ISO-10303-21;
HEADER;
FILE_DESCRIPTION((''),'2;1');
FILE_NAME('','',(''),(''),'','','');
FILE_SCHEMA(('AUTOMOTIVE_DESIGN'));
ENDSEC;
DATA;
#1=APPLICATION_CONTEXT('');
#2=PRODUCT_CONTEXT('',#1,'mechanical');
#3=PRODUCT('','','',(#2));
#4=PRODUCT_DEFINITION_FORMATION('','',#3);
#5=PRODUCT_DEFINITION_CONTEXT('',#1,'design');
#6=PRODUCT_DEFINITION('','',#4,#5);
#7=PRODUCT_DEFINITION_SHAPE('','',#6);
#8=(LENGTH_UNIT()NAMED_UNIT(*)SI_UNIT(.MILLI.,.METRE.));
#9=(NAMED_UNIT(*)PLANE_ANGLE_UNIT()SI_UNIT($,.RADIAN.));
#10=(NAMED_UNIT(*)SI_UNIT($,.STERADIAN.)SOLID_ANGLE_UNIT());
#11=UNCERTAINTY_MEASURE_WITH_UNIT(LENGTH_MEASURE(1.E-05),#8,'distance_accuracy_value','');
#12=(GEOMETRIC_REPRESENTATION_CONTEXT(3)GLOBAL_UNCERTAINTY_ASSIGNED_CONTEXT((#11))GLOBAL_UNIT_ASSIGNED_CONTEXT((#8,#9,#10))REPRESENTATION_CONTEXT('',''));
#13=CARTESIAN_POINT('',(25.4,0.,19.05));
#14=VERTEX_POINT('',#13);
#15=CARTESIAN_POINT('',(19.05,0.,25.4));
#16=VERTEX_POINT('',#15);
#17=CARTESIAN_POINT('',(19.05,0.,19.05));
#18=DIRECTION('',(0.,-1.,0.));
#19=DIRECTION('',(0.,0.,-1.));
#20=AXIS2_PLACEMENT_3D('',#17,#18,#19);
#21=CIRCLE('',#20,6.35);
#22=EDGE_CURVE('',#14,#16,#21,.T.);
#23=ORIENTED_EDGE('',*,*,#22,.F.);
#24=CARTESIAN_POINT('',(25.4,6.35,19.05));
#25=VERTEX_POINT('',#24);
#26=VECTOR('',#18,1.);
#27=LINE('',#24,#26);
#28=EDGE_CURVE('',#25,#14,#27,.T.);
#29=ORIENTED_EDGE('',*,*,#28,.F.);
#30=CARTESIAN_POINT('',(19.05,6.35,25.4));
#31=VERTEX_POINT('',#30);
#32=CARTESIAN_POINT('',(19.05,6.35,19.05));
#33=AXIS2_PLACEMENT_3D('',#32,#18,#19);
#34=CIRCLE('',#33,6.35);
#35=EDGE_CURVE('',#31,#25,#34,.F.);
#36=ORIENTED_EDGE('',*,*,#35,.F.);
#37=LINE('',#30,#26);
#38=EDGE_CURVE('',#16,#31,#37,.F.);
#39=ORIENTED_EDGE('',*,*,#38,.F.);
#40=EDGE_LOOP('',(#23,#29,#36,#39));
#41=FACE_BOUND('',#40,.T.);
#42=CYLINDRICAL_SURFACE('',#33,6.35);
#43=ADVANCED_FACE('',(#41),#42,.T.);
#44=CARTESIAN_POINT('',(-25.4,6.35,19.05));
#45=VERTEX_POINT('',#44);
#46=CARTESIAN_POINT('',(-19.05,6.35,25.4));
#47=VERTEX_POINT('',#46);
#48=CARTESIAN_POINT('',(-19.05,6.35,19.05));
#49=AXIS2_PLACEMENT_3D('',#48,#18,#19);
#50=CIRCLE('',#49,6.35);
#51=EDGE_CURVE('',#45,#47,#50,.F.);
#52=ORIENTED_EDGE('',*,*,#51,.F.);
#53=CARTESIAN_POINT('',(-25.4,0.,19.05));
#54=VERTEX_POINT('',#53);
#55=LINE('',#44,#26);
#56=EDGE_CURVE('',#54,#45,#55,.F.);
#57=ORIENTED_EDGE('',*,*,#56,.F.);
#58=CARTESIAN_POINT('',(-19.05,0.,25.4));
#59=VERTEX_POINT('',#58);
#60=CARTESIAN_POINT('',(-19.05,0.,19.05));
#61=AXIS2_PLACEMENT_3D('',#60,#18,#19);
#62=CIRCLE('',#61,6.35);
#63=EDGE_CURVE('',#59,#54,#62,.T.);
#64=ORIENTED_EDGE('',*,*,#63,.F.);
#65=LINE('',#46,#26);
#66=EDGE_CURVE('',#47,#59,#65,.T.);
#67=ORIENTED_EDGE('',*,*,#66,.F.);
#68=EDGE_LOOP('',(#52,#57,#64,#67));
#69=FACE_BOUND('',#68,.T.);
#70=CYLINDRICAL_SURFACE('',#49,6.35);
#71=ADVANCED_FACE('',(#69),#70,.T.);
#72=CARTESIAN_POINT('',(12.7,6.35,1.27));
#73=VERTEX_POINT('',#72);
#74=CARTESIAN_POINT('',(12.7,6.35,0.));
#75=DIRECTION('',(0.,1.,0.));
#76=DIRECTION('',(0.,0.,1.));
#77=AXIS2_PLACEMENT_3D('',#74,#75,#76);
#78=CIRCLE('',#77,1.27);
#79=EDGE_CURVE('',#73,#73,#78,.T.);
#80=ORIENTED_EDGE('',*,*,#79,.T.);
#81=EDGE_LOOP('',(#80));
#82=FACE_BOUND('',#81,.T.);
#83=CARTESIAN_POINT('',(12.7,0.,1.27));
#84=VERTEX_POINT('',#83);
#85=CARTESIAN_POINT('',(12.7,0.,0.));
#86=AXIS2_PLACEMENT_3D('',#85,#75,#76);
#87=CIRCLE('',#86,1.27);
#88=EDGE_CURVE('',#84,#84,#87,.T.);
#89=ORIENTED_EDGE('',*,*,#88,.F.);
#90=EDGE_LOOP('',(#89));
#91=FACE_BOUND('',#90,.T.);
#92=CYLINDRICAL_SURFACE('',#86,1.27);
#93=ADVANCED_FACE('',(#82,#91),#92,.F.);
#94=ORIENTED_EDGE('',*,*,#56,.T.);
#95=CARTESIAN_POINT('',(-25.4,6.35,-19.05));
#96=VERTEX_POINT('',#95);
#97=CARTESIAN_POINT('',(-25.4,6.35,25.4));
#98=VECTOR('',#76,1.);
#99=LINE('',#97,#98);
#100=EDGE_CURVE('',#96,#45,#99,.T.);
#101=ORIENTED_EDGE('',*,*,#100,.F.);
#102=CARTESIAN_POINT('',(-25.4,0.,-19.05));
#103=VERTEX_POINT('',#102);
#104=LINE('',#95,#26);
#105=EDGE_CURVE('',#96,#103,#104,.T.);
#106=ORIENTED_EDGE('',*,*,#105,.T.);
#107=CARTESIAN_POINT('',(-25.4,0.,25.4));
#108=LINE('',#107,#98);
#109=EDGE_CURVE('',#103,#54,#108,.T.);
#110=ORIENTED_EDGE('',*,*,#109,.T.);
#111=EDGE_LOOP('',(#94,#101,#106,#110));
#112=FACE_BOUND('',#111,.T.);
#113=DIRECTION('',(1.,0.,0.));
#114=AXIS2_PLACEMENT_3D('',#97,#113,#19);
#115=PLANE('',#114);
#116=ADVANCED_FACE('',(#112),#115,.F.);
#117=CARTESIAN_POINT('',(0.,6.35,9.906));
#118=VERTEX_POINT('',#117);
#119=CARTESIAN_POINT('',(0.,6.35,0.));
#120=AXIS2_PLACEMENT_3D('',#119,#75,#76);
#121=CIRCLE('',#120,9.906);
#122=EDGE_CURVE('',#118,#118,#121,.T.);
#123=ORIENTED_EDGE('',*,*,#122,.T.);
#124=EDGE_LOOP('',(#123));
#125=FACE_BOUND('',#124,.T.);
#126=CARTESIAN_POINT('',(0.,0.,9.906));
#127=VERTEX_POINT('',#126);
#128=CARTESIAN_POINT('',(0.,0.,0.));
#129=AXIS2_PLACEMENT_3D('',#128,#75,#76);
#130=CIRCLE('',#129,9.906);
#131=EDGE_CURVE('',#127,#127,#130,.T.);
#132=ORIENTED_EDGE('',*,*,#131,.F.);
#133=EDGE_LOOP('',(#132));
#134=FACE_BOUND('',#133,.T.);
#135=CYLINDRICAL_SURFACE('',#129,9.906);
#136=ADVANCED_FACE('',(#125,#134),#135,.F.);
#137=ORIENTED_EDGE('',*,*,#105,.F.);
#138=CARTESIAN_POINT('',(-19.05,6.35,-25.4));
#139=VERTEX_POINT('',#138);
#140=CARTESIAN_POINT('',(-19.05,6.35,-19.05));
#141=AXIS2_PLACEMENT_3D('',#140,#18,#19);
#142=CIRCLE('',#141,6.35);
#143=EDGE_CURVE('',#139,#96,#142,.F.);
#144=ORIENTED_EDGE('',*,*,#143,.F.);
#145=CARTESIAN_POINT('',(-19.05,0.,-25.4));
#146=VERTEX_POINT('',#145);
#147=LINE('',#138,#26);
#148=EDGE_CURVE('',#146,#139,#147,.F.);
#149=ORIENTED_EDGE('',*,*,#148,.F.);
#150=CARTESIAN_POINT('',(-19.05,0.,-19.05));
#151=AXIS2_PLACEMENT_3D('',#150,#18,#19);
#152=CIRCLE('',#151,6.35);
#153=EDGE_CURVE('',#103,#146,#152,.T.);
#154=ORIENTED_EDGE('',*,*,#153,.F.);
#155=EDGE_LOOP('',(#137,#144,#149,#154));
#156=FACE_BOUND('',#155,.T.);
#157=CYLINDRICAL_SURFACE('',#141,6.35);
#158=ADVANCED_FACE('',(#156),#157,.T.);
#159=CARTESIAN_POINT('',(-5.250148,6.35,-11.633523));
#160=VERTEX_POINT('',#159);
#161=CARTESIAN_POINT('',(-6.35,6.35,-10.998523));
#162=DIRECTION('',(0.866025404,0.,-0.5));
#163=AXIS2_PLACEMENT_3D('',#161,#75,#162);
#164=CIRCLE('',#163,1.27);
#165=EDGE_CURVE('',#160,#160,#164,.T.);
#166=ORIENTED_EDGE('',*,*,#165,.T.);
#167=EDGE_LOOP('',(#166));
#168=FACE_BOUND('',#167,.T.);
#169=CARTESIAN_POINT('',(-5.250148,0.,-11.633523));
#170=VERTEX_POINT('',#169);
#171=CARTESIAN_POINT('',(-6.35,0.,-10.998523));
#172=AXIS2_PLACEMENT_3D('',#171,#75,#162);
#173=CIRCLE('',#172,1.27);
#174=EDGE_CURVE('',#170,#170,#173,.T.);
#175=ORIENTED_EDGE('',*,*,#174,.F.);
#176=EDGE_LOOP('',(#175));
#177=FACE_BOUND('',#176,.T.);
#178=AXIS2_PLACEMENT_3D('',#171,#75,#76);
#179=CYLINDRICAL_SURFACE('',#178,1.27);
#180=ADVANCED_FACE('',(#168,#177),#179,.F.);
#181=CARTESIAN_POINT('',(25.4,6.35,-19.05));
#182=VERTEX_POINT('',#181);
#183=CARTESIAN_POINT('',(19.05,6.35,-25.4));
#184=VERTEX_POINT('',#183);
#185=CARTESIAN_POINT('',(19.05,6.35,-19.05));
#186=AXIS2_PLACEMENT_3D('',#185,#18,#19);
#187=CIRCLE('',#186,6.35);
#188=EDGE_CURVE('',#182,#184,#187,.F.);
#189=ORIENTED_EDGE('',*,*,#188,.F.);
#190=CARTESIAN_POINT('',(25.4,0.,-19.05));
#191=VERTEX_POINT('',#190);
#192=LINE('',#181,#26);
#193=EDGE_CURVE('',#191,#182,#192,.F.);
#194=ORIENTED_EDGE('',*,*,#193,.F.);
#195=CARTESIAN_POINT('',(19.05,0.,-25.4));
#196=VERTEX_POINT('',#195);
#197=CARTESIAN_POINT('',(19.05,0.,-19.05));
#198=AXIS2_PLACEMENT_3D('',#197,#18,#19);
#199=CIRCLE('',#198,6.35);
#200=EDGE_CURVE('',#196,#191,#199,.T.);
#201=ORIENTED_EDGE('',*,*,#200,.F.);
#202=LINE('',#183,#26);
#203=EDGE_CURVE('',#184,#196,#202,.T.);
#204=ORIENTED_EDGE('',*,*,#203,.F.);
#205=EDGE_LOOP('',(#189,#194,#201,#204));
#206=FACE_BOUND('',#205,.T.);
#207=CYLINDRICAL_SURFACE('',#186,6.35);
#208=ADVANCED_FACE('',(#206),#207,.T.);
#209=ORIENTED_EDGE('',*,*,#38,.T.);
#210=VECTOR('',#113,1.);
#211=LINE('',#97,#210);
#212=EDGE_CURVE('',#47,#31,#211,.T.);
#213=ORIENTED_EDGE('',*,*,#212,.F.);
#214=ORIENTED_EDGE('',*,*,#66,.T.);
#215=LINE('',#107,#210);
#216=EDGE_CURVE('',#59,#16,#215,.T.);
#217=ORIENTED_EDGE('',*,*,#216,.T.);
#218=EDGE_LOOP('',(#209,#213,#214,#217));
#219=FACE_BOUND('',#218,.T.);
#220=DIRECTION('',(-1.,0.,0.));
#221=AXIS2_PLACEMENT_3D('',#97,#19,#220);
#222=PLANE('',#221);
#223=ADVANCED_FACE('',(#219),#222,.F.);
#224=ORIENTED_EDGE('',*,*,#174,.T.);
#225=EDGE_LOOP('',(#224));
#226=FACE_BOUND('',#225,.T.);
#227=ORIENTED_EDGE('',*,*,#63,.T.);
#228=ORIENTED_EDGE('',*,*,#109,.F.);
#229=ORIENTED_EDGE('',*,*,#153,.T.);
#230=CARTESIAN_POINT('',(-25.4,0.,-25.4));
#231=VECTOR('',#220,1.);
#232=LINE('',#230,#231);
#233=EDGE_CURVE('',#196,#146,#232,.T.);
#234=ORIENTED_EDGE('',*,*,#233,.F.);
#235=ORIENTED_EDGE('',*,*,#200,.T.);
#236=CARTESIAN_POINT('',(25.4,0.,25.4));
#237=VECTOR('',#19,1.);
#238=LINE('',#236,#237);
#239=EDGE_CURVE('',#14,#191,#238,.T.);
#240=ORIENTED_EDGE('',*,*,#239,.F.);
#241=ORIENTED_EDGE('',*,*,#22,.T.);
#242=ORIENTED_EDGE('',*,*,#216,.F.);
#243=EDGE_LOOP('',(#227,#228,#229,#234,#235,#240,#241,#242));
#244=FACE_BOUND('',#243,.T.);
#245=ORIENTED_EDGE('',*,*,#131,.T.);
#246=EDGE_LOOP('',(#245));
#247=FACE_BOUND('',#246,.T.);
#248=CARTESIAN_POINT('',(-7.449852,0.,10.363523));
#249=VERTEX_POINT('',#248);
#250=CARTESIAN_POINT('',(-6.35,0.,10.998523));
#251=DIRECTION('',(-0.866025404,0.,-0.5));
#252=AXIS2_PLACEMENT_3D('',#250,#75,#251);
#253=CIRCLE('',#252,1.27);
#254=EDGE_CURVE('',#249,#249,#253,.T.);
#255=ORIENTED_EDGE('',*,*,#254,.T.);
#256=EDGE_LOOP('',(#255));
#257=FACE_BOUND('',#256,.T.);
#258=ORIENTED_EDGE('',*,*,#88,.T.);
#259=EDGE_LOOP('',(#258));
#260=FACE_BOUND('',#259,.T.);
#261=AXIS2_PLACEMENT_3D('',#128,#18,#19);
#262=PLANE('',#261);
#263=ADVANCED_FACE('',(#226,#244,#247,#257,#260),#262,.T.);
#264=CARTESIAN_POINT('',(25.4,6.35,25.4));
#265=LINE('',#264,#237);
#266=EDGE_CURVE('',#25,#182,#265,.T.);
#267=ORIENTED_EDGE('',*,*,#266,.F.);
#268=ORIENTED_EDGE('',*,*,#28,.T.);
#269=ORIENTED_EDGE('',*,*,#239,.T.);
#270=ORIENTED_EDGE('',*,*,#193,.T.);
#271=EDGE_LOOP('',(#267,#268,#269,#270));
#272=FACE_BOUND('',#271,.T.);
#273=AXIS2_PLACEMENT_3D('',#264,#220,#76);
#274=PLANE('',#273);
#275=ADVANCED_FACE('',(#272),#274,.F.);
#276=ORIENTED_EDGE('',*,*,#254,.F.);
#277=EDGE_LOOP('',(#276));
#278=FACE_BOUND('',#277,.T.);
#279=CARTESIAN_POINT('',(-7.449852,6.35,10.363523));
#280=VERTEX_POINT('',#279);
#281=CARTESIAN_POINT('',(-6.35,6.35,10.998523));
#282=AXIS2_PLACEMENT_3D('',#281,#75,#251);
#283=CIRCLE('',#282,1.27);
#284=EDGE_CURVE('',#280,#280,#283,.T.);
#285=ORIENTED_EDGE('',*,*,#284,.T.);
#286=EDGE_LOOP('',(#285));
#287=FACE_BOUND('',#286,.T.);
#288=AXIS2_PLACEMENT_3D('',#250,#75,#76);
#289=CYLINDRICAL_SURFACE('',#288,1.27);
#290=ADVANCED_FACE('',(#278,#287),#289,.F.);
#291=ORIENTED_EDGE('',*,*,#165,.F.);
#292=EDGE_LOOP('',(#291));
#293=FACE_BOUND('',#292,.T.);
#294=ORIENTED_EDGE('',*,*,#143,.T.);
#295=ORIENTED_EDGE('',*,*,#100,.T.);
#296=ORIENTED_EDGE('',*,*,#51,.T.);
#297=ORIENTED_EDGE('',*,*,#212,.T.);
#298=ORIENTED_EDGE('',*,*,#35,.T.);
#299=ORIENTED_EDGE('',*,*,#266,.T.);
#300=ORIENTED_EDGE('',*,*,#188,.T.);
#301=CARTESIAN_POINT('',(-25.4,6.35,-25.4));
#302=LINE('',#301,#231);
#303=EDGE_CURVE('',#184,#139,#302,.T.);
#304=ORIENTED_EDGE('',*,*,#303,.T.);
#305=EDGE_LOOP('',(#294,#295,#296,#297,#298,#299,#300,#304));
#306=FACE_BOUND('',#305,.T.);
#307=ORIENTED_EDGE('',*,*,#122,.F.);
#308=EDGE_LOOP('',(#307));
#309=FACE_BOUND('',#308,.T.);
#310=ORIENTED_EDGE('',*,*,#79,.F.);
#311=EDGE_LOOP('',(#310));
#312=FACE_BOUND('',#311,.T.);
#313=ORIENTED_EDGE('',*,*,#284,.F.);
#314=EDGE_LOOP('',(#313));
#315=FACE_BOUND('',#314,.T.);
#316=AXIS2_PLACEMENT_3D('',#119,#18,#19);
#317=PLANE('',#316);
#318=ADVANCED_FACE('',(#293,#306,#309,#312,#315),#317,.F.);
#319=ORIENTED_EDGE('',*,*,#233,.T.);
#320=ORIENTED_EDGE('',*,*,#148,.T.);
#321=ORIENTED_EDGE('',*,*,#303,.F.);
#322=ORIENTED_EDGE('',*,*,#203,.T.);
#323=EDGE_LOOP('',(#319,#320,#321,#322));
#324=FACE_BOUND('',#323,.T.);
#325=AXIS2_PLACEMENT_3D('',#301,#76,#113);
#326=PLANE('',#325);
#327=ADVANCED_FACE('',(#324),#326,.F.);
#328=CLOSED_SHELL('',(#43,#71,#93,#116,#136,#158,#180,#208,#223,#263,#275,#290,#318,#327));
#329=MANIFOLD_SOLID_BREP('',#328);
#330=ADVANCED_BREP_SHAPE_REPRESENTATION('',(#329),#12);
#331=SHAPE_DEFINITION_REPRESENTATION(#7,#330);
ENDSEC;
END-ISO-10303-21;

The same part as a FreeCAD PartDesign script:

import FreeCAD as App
import Part
import Sketcher

V = App.Vector
Q = App.Units.Quantity


def edges_at(feature, points):
    """Names of the edges that pass closest to the given points."""
    edges = feature.Shape.Edges
    near = lambda p: min(range(len(edges)), key=lambda i: edges[i].distToShape(Part.Vertex(*p))[0])
    return sorted({f"Edge{near(p) + 1}" for p in points})

doc = App.newDocument("Part")
body = doc.addObject("PartDesign::Body", "Body")

sketch1 = body.newObject("Sketcher::SketchObject", "Sketch")
sketch1.AttachmentSupport = (doc.getObject("XZ_Plane"), [""])
sketch1.MapMode = "FlatFace"
sketch1.addGeometry(Part.LineSegment(V(-25.4, -25.4, 0), V(-25.4, 25.4, 0)), False)
sketch1.addGeometry(Part.LineSegment(V(-25.4, 25.4, 0), V(25.4, 25.4, 0)), False)
sketch1.addGeometry(Part.LineSegment(V(25.4, 25.4, 0), V(25.4, -25.4, 0)), False)
sketch1.addGeometry(Part.LineSegment(V(25.4, -25.4, 0), V(-25.4, -25.4, 0)), False)
sketch1.addConstraint(Sketcher.Constraint("Coincident", 0, 2, 1, 1))
sketch1.addConstraint(Sketcher.Constraint("Coincident", 1, 2, 2, 1))
sketch1.addConstraint(Sketcher.Constraint("Coincident", 2, 2, 3, 1))
sketch1.addConstraint(Sketcher.Constraint("Coincident", 3, 2, 0, 1))
sketch1.addConstraint(Sketcher.Constraint("Vertical", 0))
sketch1.addConstraint(Sketcher.Constraint("Horizontal", 1))
sketch1.addConstraint(Sketcher.Constraint("Vertical", 2))
sketch1.addConstraint(Sketcher.Constraint("Horizontal", 3))
sketch1.addConstraint(Sketcher.Constraint("Symmetric", 0, 2, 2, 2, -1, 1))
sketch1.addConstraint(Sketcher.Constraint("Equal", 3, 0))
sketch1.addConstraint(Sketcher.Constraint("DistanceX", 1, 1, 1, 2, Q("2 in")))
pad1 = body.newObject("PartDesign::Pad", "Pad")
pad1.Profile = sketch1
pad1.Length = Q("0.25 in")
pad1.Reversed = True

sketch2 = body.newObject("Sketcher::SketchObject", "Sketch001")
sketch2.AttachmentSupport = (doc.getObject("XZ_Plane"), [""])
sketch2.MapMode = "FlatFace"
sketch2.AttachmentOffset = App.Placement(V(0, 0, -0.25 * 25.4), App.Rotation())
sketch2.addGeometry(Part.Circle(V(0, 0, 0), V(0, 0, 1), 9.906), False)
sketch2.addConstraint(Sketcher.Constraint("Coincident", 0, 3, -1, 1))
sketch2.addConstraint(Sketcher.Constraint("Diameter", 0, Q("0.78 in")))
pocket1 = body.newObject("PartDesign::Pocket", "Pocket")
pocket1.Profile = sketch2
pocket1.Type = "ThroughAll"
pocket1.Reversed = True

sketch3 = body.newObject("Sketcher::SketchObject", "Sketch002")
sketch3.AttachmentSupport = (doc.getObject("XZ_Plane"), [""])
sketch3.MapMode = "FlatFace"
sketch3.AttachmentOffset = App.Placement(V(0, 0, -0.25 * 25.4), App.Rotation())
sketch3.addGeometry(Part.Circle(V(12.7, 0, 0), V(0, 0, 1), 1.27), False)
sketch3.addConstraint(Sketcher.Constraint("PointOnObject", 0, 3, -1))
sketch3.addConstraint(Sketcher.Constraint("Diameter", 0, Q("0.1 in")))
sketch3.addConstraint(Sketcher.Constraint("DistanceX", -1, 1, 0, 3, Q("0.5 in")))
pocket2 = body.newObject("PartDesign::Pocket", "Pocket001")
pocket2.Profile = sketch3
pocket2.Type = "ThroughAll"
pocket2.Reversed = True
doc.recompute()

polarpattern = body.newObject("PartDesign::PolarPattern", "PolarPattern")
polarpattern.Originals = [pocket2]
polarpattern.Axis = (doc.getObject("Y_Axis"), [""])
polarpattern.Angle = 360
polarpattern.Occurrences = 3
body.Tip = polarpattern
doc.recompute()

fillet = body.newObject("PartDesign::Fillet", "Fillet")
fillet.Base = (polarpattern, edges_at(polarpattern, [
    (25.4, 3.175, 25.4),
    (-25.4, 3.175, 25.4),
    (-25.4, 3.175, -25.4),
    (25.4, 3.175, -25.4),
]))
fillet.Radius = Q("0.25 in")

doc.recompute()
